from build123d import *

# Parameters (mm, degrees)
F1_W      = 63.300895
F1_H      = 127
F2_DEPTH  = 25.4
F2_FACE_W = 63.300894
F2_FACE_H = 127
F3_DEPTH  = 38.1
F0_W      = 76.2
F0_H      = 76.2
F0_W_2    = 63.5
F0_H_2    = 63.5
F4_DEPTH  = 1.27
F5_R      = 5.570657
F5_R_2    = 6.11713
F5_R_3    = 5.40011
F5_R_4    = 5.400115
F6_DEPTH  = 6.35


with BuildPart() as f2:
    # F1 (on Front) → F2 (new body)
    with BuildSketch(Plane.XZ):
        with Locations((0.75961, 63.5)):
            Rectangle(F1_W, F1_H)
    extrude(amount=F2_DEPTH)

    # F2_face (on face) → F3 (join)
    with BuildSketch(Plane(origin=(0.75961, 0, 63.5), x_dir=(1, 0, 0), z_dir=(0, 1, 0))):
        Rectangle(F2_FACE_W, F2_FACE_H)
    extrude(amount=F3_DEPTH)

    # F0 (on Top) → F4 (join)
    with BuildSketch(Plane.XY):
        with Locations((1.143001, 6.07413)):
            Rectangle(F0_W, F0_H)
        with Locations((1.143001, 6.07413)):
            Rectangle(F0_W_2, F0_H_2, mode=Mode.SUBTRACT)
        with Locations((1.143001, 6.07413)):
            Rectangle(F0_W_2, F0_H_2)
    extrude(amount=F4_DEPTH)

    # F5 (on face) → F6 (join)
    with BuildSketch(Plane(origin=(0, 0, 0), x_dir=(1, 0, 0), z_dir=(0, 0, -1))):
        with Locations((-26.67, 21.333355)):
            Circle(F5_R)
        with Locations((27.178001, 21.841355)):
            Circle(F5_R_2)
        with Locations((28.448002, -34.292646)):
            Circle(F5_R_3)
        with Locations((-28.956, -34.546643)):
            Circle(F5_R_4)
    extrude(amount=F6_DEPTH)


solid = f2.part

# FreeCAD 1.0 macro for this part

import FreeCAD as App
import Part
import Sketcher

V = App.Vector
Q = App.Units.Quantity

doc = App.newDocument("Part")
body = doc.addObject("PartDesign::Body", "Body")

sketch1 = body.newObject("Sketcher::SketchObject", "Sketch")
sketch1.AttachmentSupport = (doc.getObject("XZ_Plane"), [""])
sketch1.MapMode = "FlatFace"
sketch1.addGeometry(Part.LineSegment(V(-31, 127, 0), V(-31, 0, 0)), False)
sketch1.addGeometry(Part.LineSegment(V(-31, 0, 0), V(32, 0, 0)), False)
sketch1.addGeometry(Part.LineSegment(V(32, 0, 0), V(32, 127, 0)), False)
sketch1.addGeometry(Part.LineSegment(V(32, 127, 0), V(-31, 127, 0)), False)
sketch1.addConstraint(Sketcher.Constraint("Coincident", 0, 2, 1, 1))
sketch1.addConstraint(Sketcher.Constraint("Coincident", 1, 2, 2, 1))
sketch1.addConstraint(Sketcher.Constraint("Coincident", 2, 2, 3, 1))
sketch1.addConstraint(Sketcher.Constraint("Coincident", 3, 2, 0, 1))
sketch1.addConstraint(Sketcher.Constraint("Vertical", 0))
sketch1.addConstraint(Sketcher.Constraint("Horizontal", 1))
sketch1.addConstraint(Sketcher.Constraint("Vertical", 2))
sketch1.addConstraint(Sketcher.Constraint("Horizontal", 3))
sketch1.addConstraint(Sketcher.Constraint("PointOnObject", 0, 2, -1))
sketch1.addConstraint(Sketcher.Constraint("DistanceY", 0, 2, 0, 1, Q("5 in")))
sketch1.addConstraint(Sketcher.Constraint("DistanceX", 1, 1, 1, 2, Q("63.300895 mm")))
sketch1.addConstraint(Sketcher.Constraint("DistanceX", 0, 2, -1, 1, Q("30.890837 mm")))
pad1 = body.newObject("PartDesign::Pad", "Pad")
pad1.Profile = sketch1
pad1.Length = Q("1 in")

sketch2 = body.newObject("Sketcher::SketchObject", "Sketch001")
sketch2.AttachmentSupport = (doc.getObject("XZ_Plane"), [""])
sketch2.MapMode = "FlatFace"
sketch2.addGeometry(Part.LineSegment(V(-31, 0, 0), V(-31, 127, 0)), False)
sketch2.addGeometry(Part.LineSegment(V(-31, 127, 0), V(32, 127, 0)), False)
sketch2.addGeometry(Part.LineSegment(V(32, 127, 0), V(32, 0, 0)), False)
sketch2.addGeometry(Part.LineSegment(V(32, 0, 0), V(-31, 0, 0)), False)
sketch2.addConstraint(Sketcher.Constraint("Coincident", 0, 2, 1, 1))
sketch2.addConstraint(Sketcher.Constraint("Coincident", 1, 2, 2, 1))
sketch2.addConstraint(Sketcher.Constraint("Coincident", 2, 2, 3, 1))
sketch2.addConstraint(Sketcher.Constraint("Coincident", 3, 2, 0, 1))
sketch2.addConstraint(Sketcher.Constraint("Vertical", 0))
sketch2.addConstraint(Sketcher.Constraint("Horizontal", 1))
sketch2.addConstraint(Sketcher.Constraint("Vertical", 2))
sketch2.addConstraint(Sketcher.Constraint("Horizontal", 3))
sketch2.addConstraint(Sketcher.Constraint("PointOnObject", 2, 2, -1))
sketch2.addConstraint(Sketcher.Constraint("DistanceY", 0, 1, 0, 2, Q("5 in")))
sketch2.addConstraint(Sketcher.Constraint("DistanceX", 1, 1, 1, 2, Q("63.300894 mm")))
sketch2.addConstraint(Sketcher.Constraint("DistanceX", 0, 2, -1, 1, Q("30.890837 mm")))
pad2 = body.newObject("PartDesign::Pad", "Pad001")
pad2.Profile = sketch2
pad2.Length = Q("1.5 in")
pad2.Reversed = True

sketch3 = body.newObject("Sketcher::SketchObject", "Sketch002")
sketch3.AttachmentSupport = (doc.getObject("XY_Plane"), [""])
sketch3.MapMode = "FlatFace"
sketch3.addGeometry(Part.LineSegment(V(-37, 44, 0), V(-37, -32, 0)), False)
sketch3.addGeometry(Part.LineSegment(V(-37, -32, 0), V(39, -32, 0)), False)
sketch3.addGeometry(Part.LineSegment(V(39, -32, 0), V(39, 44, 0)), False)
sketch3.addGeometry(Part.LineSegment(V(39, 44, 0), V(-37, 44, 0)), False)
sketch3.addConstraint(Sketcher.Constraint("Coincident", 0, 2, 1, 1))
sketch3.addConstraint(Sketcher.Constraint("Coincident", 1, 2, 2, 1))
sketch3.addConstraint(Sketcher.Constraint("Coincident", 2, 2, 3, 1))
sketch3.addConstraint(Sketcher.Constraint("Coincident", 3, 2, 0, 1))
sketch3.addConstraint(Sketcher.Constraint("Vertical", 0))
sketch3.addConstraint(Sketcher.Constraint("Horizontal", 1))
sketch3.addConstraint(Sketcher.Constraint("Vertical", 2))
sketch3.addConstraint(Sketcher.Constraint("Horizontal", 3))
sketch3.addConstraint(Sketcher.Constraint("Equal", 3, 0))
sketch3.addConstraint(Sketcher.Constraint("DistanceX", 1, 1, 1, 2, Q("3 in")))
sketch3.addConstraint(Sketcher.Constraint("DistanceX", 0, 2, -1, 1, Q("1.455 in")))
sketch3.addConstraint(Sketcher.Constraint("DistanceY", 0, 2, -1, 1, Q("32.02587 mm")))
pad3 = body.newObject("PartDesign::Pad", "Pad002")
pad3.Profile = sketch3
pad3.Length = Q("0.05 in")

sketch4 = body.newObject("Sketcher::SketchObject", "Sketch003")
sketch4.AttachmentSupport = (doc.getObject("XY_Plane"), [""])
sketch4.MapMode = "FlatFace"
sketch4.addGeometry(Part.Circle(V(-27, -21, 0), V(0, 0, 1), 6), False)
sketch4.addGeometry(Part.Circle(V(27, -22, 0), V(0, 0, 1), 6), False)
sketch4.addGeometry(Part.Circle(V(28, 34, 0), V(0, 0, 1), 5), False)
sketch4.addGeometry(Part.Circle(V(-29, 35, 0), V(0, 0, 1), 5), False)
sketch4.addConstraint(Sketcher.Constraint("DistanceY", 0, 3, 3, 3, Q("2.1999999 in")))
sketch4.addConstraint(Sketcher.Constraint("DistanceX", 0, 3, -1, 1, Q("1.05 in")))
sketch4.addConstraint(Sketcher.Constraint("DistanceX", -1, 1, 1, 3, Q("1.07 in")))
sketch4.addConstraint(Sketcher.Constraint("DistanceX", -1, 1, 2, 3, Q("1.1200001 in")))
sketch4.addConstraint(Sketcher.Constraint("DistanceX", 3, 3, -1, 1, Q("1.14 in")))
sketch4.addConstraint(Sketcher.Constraint("DistanceY", 1, 3, 0, 3, Q("0.02 in")))
sketch4.addConstraint(Sketcher.Constraint("DistanceY", 1, 3, 2, 3, Q("2.21 in")))
sketch4.addConstraint(Sketcher.Constraint("Diameter", 1, Q("12.23426 mm")))
sketch4.addConstraint(Sketcher.Constraint("Diameter", 2, Q("10.80022 mm")))
sketch4.addConstraint(Sketcher.Constraint("Diameter", 3, Q("10.80023 mm")))
sketch4.addConstraint(Sketcher.Constraint("Diameter", 0, Q("11.141314 mm")))
sketch4.addConstraint(Sketcher.Constraint("DistanceY", 0, 3, -1, 1, Q("21.333355 mm")))
pad4 = body.newObject("PartDesign::Pad", "Pad003")
pad4.Profile = sketch4
pad4.Length = Q("0.25 in")
pad4.Reversed = True

doc.recompute()
